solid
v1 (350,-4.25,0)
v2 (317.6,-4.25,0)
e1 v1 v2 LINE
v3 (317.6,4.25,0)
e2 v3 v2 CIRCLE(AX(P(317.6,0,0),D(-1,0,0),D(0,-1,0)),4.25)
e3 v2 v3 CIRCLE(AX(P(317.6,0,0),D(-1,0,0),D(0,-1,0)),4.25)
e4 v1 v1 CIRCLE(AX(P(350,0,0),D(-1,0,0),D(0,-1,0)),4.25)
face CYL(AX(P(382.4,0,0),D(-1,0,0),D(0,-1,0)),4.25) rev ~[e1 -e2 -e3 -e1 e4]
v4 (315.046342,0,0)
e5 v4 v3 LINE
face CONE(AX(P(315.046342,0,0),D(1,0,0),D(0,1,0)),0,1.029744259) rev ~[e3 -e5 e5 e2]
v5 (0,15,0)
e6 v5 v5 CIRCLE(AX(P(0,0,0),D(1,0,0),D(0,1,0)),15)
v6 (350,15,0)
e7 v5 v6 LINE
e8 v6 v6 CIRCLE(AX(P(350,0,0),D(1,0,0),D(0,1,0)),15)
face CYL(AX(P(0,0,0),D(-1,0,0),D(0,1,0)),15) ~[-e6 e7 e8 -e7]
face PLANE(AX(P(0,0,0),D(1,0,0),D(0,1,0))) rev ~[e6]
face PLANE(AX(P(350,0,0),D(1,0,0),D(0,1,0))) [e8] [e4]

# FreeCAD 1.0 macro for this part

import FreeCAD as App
import Part
import Sketcher

V = App.Vector

doc = App.newDocument("Part")
body = doc.addObject("PartDesign::Body", "Body")

# Sketch on YZ plane
sketch1 = body.newObject("Sketcher::SketchObject", "Sketch")
sketch1.AttachmentSupport = (doc.getObject("YZ_Plane"), [""])
sketch1.MapMode = "FlatFace"
sketch1.addGeometry(Part.Circle(V(0, 0, 0), V(0, 0, 1), 15), False)
sketch1.addConstraint(Sketcher.Constraint("Coincident", 0, 3, -1, 1))
sketch1.addConstraint(Sketcher.Constraint("Diameter", 0, 30.0))
pad1 = body.newObject("PartDesign::Pad", "Pad")
pad1.Profile = sketch1
pad1.Length = 350

# Sketch on YZ plane
sketch2 = body.newObject("Sketcher::SketchObject", "Sketch001")
sketch2.AttachmentSupport = (doc.getObject("YZ_Plane"), [""])
sketch2.MapMode = "FlatFace"
sketch2.AttachmentOffset = App.Placement(V(0, 0, 350), App.Rotation())
sketch2.addGeometry(Part.Circle(V(0, 0, 0), V(0, 0, 1), 4.2), False)
sketch2.addConstraint(Sketcher.Constraint("Coincident", 0, 3, -1, 1))
sketch2.addConstraint(Sketcher.Constraint("Diameter", 0, 8.5))
doc.recompute()
hole = body.newObject("PartDesign::Hole", "Hole")
hole.Profile = sketch2
hole.ThreadType = "None"
hole.Diameter = 8.5
hole.DepthType = "Dimension"
hole.Depth = 32.4
hole.DrillPoint = "Angled"
hole.DrillPointAngle = 118

doc.recompute()
